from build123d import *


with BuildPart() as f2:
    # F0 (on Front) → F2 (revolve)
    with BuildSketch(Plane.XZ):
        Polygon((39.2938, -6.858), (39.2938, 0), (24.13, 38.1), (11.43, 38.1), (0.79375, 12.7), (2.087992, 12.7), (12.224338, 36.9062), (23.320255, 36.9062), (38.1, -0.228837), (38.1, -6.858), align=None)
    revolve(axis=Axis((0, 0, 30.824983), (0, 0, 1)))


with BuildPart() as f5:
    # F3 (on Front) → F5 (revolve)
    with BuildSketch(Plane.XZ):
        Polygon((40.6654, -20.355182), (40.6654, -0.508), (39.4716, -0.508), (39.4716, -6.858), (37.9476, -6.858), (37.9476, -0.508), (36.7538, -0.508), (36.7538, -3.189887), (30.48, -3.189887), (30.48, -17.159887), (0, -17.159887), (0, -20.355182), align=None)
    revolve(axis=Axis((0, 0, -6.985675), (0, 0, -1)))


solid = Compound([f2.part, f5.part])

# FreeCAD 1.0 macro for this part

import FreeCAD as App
import Part
import Sketcher
from FreeCAD import Vector
Q = App.Units.Quantity

doc = App.newDocument("Part")
body = doc.addObject("PartDesign::Body", "Body")

# Sketch on XZ plane
sketch1 = body.newObject("Sketcher::SketchObject", "Sketch")
sketch1.AttachmentSupport = (doc.getObject("XZ_Plane"), [""])
sketch1.MapMode = "FlatFace"
sketch1.addGeometry([
    Part.LineSegment(Vector(39.3, -6.9, 0), Vector(39.3, 0, 0)),  # 0
    Part.LineSegment(Vector(39.3, 0, 0), Vector(24.1, 38.1, 0)),  # 1
    Part.LineSegment(Vector(24.1, 38.1, 0), Vector(11.4, 38.1, 0)),  # 2
    Part.LineSegment(Vector(11.4, 38.1, 0), Vector(0.8, 12.7, 0)),  # 3
    Part.LineSegment(Vector(0.8, 12.7, 0), Vector(2.1, 12.7, 0)),  # 4
    Part.LineSegment(Vector(2.1, 12.7, 0), Vector(12.2, 36.9, 0)),  # 5
    Part.LineSegment(Vector(12.2, 36.9, 0), Vector(23.3, 36.9, 0)),  # 6
    Part.LineSegment(Vector(23.3, 36.9, 0), Vector(38.1, -0.2, 0)),  # 7
    Part.LineSegment(Vector(38.1, -0.2, 0), Vector(38.1, -6.9, 0)),  # 8
    Part.LineSegment(Vector(38.1, -6.9, 0), Vector(39.3, -6.9, 0)),  # 9
], False)
sketch1.addConstraint([
    Sketcher.Constraint("Coincident", 0, 2, 1, 1),
    Sketcher.Constraint("Coincident", 1, 2, 2, 1),
    Sketcher.Constraint("Coincident", 2, 2, 3, 1),
    Sketcher.Constraint("Coincident", 3, 2, 4, 1),
    Sketcher.Constraint("Coincident", 4, 2, 5, 1),
    Sketcher.Constraint("Coincident", 5, 2, 6, 1),
    Sketcher.Constraint("Coincident", 6, 2, 7, 1),
    Sketcher.Constraint("Coincident", 7, 2, 8, 1),
    Sketcher.Constraint("Coincident", 8, 2, 9, 1),
    Sketcher.Constraint("Coincident", 9, 2, 0, 1),
    Sketcher.Constraint("Vertical", 0),
    Sketcher.Constraint("Horizontal", 2),
    Sketcher.Constraint("Horizontal", 4),
    Sketcher.Constraint("Horizontal", 6),
    Sketcher.Constraint("Vertical", 8),
    Sketcher.Constraint("Horizontal", 9),
    Sketcher.Constraint("PointOnObject", 0, 2, -1),
    Sketcher.Constraint("Parallel", 3, 5),
    Sketcher.Constraint("Parallel", 1, 7),
    Sketcher.Constraint("DistanceX", 2, 2, 2, 1, Q("0.5 in")),
    Sketcher.Constraint("DistanceY", 3, 2, 2, 2, Q("1 in")),
    Sketcher.Constraint("DistanceY", 0, 1, 0, 2, Q("0.27 in")),
    Sketcher.Constraint("DistanceY", -1, 1, 1, 2, Q("1.5 in")),
    Sketcher.Constraint("DistanceX", -1, 1, 7, 2, Q("1.5 in")),
    Sketcher.Constraint("DistanceX", 9, 1, 9, 2, Q("0.047 in")),
    Sketcher.Constraint("DistanceX", -1, 1, 1, 2, Q("0.95 in")),
    Sketcher.Constraint("DistanceX", -1, 1, 3, 2, Q("0.03125 in")),
    Sketcher.Constraint("DistanceY", -1, 1, 5, 2, Q("1.453 in")),
    Sketcher.Constraint("DistanceX", 4, 1, 4, 2, 1.294242),
    Sketcher.Constraint("DistanceX", 6, 1, 6, 2, 11.095917),
])
revolution = body.newObject("PartDesign::Revolution", "Revolution")
revolution.Profile = sketch1
revolution.ReferenceAxis = (sketch1, ["V_Axis"])
revolution.Angle = 360
body2 = doc.addObject("PartDesign::Body", "Body001")

# Sketch on XZ plane
sketch2 = body2.newObject("Sketcher::SketchObject", "Sketch001")
sketch2.AttachmentSupport = (doc.getObject("XZ_Plane001"), [""])
sketch2.MapMode = "FlatFace"
sketch2.addGeometry([
    Part.LineSegment(Vector(40.7, -20.4, 0), Vector(40.7, -0.5, 0)),  # 0
    Part.LineSegment(Vector(40.7, -0.5, 0), Vector(39.5, -0.5, 0)),  # 1
    Part.LineSegment(Vector(39.5, -0.5, 0), Vector(39.5, -6.9, 0)),  # 2
    Part.LineSegment(Vector(39.5, -6.9, 0), Vector(37.9, -6.9, 0)),  # 3
    Part.LineSegment(Vector(37.9, -6.9, 0), Vector(37.9, -0.5, 0)),  # 4
    Part.LineSegment(Vector(37.9, -0.5, 0), Vector(36.8, -0.5, 0)),  # 5
    Part.LineSegment(Vector(36.8, -0.5, 0), Vector(36.8, -3.2, 0)),  # 6
    Part.LineSegment(Vector(36.8, -3.2, 0), Vector(30.5, -3.2, 0)),  # 7
    Part.LineSegment(Vector(30.5, -3.2, 0), Vector(30.5, -17.2, 0)),  # 8
    Part.LineSegment(Vector(30.5, -17.2, 0), Vector(0, -17.2, 0)),  # 9
    Part.LineSegment(Vector(0, -17.2, 0), Vector(0, -20.4, 0)),  # 10
    Part.LineSegment(Vector(0, -20.4, 0), Vector(40.7, -20.4, 0)),  # 11
], False)
sketch2.addConstraint([
    Sketcher.Constraint("Coincident", 0, 2, 1, 1),
    Sketcher.Constraint("Coincident", 1, 2, 2, 1),
    Sketcher.Constraint("Coincident", 2, 2, 3, 1),
    Sketcher.Constraint("Coincident", 3, 2, 4, 1),
    Sketcher.Constraint("Coincident", 4, 2, 5, 1),
    Sketcher.Constraint("Coincident", 5, 2, 6, 1),
    Sketcher.Constraint("Coincident", 6, 2, 7, 1),
    Sketcher.Constraint("Coincident", 7, 2, 8, 1),
    Sketcher.Constraint("Coincident", 8, 2, 9, 1),
    Sketcher.Constraint("Coincident", 9, 2, 10, 1),
    Sketcher.Constraint("Coincident", 10, 2, 11, 1),
    Sketcher.Constraint("Coincident", 11, 2, 0, 1),
    Sketcher.Constraint("Vertical", 0),
    Sketcher.Constraint("Horizontal", 1),
    Sketcher.Constraint("Vertical", 2),
    Sketcher.Constraint("Horizontal", 3),
    Sketcher.Constraint("Vertical", 4),
    Sketcher.Constraint("Horizontal", 5),
    Sketcher.Constraint("Vertical", 6),
    Sketcher.Constraint("Horizontal", 7),
    Sketcher.Constraint("Vertical", 8),
    Sketcher.Constraint("Horizontal", 9),
    Sketcher.Constraint("Vertical", 10),
    Sketcher.Constraint("Horizontal", 11),
    Sketcher.Constraint("PointOnObject", 9, 2, -2),
    Sketcher.Constraint("Horizontal", 1, 2, 4, 2),
    Sketcher.Constraint("Equal", 1, 5),
    Sketcher.Constraint("DistanceX", 9, 2, 9, 1, Q("1.2 in")),
    Sketcher.Constraint("DistanceX", 3, 2, 3, 1, Q("0.06 in")),
    Sketcher.Constraint("DistanceY", 2, 2, 2, 1, Q("0.25 in")),
    Sketcher.Constraint("DistanceY", 8, 2, 8, 1, Q("0.55 in")),
    Sketcher.Constraint("DistanceX", 1, 2, 1, 1, Q("0.047 in")),
    Sketcher.Constraint("DistanceX", 7, 2, 7, 1, Q("0.247 in")),
    Sketcher.Constraint("DistanceY", 0, 2, -1, 1, Q("0.02 in")),
    Sketcher.Constraint("DistanceY", 0, 1, 0, 2, 19.847182),
    Sketcher.Constraint("DistanceY", 6, 2, 6, 1, 2.681887),
])
revolution2 = body2.newObject("PartDesign::Revolution", "Revolution001")
revolution2.Profile = sketch2
revolution2.ReferenceAxis = (sketch2, ["V_Axis"])
revolution2.Angle = 360

doc.recompute()
